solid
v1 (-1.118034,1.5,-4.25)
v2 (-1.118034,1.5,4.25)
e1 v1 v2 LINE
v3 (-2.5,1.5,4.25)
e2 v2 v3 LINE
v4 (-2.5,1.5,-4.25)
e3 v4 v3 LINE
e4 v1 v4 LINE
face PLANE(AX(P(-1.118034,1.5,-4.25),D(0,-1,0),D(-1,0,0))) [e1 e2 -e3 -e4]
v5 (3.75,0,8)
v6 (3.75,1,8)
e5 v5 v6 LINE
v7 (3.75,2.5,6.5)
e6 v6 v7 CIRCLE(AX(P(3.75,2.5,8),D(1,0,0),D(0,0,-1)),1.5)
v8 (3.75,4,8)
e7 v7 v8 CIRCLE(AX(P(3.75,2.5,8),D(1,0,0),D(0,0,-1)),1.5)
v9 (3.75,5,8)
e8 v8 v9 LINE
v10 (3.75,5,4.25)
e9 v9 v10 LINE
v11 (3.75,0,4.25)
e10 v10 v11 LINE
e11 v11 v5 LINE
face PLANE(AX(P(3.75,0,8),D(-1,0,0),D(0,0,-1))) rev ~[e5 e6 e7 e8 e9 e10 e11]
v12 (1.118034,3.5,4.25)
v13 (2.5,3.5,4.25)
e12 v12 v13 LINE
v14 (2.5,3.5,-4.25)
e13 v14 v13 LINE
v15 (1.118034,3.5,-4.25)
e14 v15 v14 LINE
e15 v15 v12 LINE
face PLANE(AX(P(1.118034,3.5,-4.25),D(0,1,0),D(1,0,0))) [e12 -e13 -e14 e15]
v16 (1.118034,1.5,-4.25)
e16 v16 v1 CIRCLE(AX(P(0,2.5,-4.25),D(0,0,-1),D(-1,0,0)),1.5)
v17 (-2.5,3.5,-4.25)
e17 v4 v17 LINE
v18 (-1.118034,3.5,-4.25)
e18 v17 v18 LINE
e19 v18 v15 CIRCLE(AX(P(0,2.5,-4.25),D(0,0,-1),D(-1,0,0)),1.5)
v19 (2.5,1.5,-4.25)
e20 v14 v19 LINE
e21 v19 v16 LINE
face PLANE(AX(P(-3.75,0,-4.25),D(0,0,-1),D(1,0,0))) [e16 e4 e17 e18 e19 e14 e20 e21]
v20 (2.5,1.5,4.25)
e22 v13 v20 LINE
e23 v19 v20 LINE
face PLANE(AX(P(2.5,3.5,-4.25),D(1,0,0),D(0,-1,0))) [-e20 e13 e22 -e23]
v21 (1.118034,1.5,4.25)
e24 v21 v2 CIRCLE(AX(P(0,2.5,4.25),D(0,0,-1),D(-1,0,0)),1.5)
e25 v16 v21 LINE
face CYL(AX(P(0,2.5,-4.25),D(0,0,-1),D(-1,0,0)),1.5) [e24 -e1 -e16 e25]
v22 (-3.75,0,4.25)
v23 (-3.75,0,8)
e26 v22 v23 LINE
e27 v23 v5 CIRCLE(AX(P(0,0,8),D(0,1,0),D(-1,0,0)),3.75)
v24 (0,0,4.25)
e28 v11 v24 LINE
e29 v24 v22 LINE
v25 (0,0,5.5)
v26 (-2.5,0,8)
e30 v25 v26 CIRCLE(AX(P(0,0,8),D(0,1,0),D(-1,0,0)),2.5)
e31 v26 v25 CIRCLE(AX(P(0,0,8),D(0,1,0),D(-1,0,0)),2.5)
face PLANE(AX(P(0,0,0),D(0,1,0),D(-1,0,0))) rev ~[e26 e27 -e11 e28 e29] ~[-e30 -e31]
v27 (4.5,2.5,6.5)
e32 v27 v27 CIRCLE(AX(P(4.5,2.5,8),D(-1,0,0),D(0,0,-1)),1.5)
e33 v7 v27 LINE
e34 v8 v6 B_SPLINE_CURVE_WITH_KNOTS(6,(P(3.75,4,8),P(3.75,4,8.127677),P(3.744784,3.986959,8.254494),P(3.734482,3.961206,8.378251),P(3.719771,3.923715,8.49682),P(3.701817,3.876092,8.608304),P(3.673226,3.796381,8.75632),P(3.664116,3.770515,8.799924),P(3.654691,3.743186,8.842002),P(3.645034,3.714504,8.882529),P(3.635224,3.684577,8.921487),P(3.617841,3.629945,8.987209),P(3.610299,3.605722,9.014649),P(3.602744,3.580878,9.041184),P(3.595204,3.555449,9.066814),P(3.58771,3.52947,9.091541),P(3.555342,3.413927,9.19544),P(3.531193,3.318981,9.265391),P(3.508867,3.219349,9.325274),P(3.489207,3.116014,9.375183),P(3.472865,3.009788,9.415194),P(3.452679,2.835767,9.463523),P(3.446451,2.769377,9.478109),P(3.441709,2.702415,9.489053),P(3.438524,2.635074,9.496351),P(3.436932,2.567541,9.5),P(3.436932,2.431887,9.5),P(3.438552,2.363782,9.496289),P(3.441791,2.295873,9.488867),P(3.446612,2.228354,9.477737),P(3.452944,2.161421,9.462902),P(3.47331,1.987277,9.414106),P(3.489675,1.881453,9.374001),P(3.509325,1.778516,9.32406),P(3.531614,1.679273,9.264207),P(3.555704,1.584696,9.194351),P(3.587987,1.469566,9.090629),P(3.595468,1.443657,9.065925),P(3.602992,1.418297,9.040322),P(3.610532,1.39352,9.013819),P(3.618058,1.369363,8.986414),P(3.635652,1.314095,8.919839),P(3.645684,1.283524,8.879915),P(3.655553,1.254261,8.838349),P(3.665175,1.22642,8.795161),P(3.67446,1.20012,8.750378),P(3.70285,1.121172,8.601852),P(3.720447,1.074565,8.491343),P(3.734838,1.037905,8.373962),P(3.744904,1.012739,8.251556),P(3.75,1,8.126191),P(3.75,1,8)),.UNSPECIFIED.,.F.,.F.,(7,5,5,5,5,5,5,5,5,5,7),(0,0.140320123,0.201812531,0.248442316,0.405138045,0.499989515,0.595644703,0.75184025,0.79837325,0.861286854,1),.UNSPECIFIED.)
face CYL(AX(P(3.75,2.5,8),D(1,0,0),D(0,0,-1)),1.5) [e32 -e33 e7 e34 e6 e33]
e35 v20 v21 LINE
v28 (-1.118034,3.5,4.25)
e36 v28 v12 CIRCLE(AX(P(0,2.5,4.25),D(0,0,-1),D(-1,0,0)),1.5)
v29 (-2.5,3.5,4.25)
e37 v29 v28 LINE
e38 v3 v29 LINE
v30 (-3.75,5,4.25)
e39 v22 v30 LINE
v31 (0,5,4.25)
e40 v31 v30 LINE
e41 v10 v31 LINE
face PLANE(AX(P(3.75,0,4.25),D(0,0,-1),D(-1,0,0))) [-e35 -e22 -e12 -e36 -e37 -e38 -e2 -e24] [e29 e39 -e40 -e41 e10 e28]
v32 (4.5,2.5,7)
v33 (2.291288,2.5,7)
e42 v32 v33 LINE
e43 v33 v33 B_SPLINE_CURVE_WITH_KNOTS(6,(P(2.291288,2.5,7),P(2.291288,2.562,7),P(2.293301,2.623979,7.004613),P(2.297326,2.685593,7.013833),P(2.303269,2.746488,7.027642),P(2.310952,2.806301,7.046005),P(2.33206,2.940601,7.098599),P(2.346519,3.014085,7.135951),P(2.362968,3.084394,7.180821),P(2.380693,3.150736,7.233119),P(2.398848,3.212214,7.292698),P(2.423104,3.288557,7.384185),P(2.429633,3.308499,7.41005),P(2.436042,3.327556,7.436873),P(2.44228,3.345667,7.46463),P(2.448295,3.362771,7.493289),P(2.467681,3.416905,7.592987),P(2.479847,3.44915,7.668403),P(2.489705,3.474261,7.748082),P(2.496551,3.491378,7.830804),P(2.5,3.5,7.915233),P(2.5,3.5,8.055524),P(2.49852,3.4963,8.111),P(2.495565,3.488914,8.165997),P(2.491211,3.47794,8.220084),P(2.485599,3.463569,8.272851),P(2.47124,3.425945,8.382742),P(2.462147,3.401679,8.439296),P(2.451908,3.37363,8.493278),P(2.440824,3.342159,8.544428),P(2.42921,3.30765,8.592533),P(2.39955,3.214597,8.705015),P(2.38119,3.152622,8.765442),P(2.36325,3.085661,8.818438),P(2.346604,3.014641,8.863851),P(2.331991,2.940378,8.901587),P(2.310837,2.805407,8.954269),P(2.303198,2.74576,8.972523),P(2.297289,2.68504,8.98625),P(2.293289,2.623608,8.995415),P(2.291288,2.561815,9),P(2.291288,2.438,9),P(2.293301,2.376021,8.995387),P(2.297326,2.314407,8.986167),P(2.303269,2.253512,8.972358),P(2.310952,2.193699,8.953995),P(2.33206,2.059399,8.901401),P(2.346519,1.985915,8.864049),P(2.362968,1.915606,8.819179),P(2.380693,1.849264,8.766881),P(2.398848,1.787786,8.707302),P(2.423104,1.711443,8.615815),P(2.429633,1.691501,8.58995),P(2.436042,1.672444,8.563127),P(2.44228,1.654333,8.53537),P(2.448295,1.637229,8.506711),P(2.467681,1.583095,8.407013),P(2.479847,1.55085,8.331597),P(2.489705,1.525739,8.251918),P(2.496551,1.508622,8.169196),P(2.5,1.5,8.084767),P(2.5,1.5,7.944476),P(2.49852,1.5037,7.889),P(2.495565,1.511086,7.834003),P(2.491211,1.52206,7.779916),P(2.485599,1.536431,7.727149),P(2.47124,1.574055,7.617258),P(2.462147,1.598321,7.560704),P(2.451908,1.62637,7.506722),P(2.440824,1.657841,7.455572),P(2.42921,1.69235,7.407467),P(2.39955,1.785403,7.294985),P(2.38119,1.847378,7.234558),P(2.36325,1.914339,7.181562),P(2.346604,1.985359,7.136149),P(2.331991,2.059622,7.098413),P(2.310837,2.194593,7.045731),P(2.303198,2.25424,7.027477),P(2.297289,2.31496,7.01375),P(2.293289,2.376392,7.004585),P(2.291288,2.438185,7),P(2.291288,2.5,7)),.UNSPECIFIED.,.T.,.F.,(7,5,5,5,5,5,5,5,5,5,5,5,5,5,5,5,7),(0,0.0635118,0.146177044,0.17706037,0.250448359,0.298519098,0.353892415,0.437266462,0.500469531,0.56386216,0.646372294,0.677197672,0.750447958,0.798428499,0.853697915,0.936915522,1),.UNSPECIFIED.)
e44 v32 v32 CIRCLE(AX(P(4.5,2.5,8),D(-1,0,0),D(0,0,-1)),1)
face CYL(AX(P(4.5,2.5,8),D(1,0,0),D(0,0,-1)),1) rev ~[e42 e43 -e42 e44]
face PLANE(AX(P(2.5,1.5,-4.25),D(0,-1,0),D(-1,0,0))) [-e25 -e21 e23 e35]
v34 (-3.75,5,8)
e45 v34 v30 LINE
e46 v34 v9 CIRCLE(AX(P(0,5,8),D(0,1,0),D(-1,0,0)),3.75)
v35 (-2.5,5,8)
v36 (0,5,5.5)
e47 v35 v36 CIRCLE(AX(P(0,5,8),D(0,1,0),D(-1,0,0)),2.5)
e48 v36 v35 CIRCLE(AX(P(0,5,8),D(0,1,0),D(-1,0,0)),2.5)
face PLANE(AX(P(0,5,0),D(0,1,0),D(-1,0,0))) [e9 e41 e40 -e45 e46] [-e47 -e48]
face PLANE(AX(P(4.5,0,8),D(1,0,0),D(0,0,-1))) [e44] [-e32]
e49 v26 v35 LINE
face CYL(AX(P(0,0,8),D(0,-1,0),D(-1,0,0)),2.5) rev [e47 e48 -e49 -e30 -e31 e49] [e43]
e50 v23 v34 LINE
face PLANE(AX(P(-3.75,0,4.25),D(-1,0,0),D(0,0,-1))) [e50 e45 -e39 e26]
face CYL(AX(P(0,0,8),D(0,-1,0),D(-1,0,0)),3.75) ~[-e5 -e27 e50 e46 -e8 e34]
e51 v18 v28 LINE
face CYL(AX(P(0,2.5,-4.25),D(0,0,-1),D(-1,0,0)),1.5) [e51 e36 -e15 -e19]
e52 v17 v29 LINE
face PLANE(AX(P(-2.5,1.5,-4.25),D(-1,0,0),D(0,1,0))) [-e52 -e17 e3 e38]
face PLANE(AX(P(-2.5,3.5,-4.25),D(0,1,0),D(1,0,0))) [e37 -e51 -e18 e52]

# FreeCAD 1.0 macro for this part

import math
import FreeCAD as App
import Part
import Sketcher
from FreeCAD import Vector


def add_polygon(sketch, points):
    """Adds a closed chain of lines whose ends are joined by coincident constraints."""
    first, n = sketch.GeometryCount, len(points)
    for a, b in zip(points, points[1:] + points[:1]):
        sketch.addGeometry(Part.LineSegment(App.Vector(*a, 0), App.Vector(*b, 0)), False)
    for i in range(n):
        sketch.addConstraint(Sketcher.Constraint("Coincident", first + i, 2, first + (i + 1) % n, 1))

doc = App.newDocument("Part")
body = doc.addObject("PartDesign::Body", "Body")

# Sketch on XZ plane
sketch1 = body.newObject("Sketcher::SketchObject", "Sketch")
sketch1.AttachmentSupport = (doc.getObject("XZ_Plane"), [""])
sketch1.MapMode = "FlatFace"
sketch1.addGeometry(Part.LineSegment(Vector(-3.8, -4.2, 0), Vector(-3.8, 8, 0)), False)
sketch1.addGeometry(Part.ArcOfCircle(Part.Circle(Vector(0, 8, 0), Vector(0, 0, 1), 3.8), math.radians(0), math.radians(180)), False)
sketch1.addGeometry(Part.LineSegment(Vector(3.8, 8, 0), Vector(3.8, -4.2, 0)), False)
sketch1.addGeometry(Part.LineSegment(Vector(3.8, -4.2, 0), Vector(-3.8, -4.2, 0)), False)
sketch1.addGeometry(Part.Circle(Vector(0, 8, 0), Vector(0, 0, 1), 2.5), False)
sketch1.addConstraint(Sketcher.Constraint("Tangent", 0, 2, 1, 2))
sketch1.addConstraint(Sketcher.Constraint("Tangent", 1, 1, 2, 1))
sketch1.addConstraint(Sketcher.Constraint("Coincident", 2, 2, 3, 1))
sketch1.addConstraint(Sketcher.Constraint("Coincident", 3, 2, 0, 1))
sketch1.addConstraint(Sketcher.Constraint("Vertical", 0))
sketch1.addConstraint(Sketcher.Constraint("Vertical", 2))
sketch1.addConstraint(Sketcher.Constraint("Horizontal", 3))
sketch1.addConstraint(Sketcher.Constraint("Coincident", 4, 3, 1, 3))
sketch1.addConstraint(Sketcher.Constraint("PointOnObject", 1, 3, -2))
sketch1.addConstraint(Sketcher.Constraint("Diameter", 4, 5.0))
sketch1.addConstraint(Sketcher.Constraint("Radius", 1, 3.75))
sketch1.addConstraint(Sketcher.Constraint("DistanceY", -1, 1, 1, 3, 8.0))
sketch1.addConstraint(Sketcher.Constraint("DistanceY", 0, 1, 0, 2, 12.25))
pad1 = body.newObject("PartDesign::Pad", "Pad")
pad1.Profile = sketch1
pad1.Length = 5
pad1.Reversed = True

# Sketch on XY plane
sketch2 = body.newObject("Sketcher::SketchObject", "Sketch001")
sketch2.AttachmentSupport = (doc.getObject("XY_Plane"), [""])
sketch2.MapMode = "FlatFace"
sketch2.AttachmentOffset = App.Placement(Vector(0, 0, -4.25), App.Rotation())
add_polygon(sketch2, [(-3.8, 5), (3.8, 5), (3.8, 0), (-3.8, 0)])  # lines 0-3
sketch2.addGeometry(Part.ArcOfCircle(Part.Circle(Vector(0, 2.5, 0), Vector(0, 0, 1), 1.5), math.radians(42), math.radians(138)), False)  # 4
sketch2.addGeometry(Part.LineSegment(Vector(-1.1, 3.5, 0), Vector(-2.5, 3.5, 0)), False)  # 5
sketch2.addGeometry(Part.LineSegment(Vector(-2.5, 3.5, 0), Vector(-2.5, 1.5, 0)), False)  # 6
sketch2.addGeometry(Part.LineSegment(Vector(-2.5, 1.5, 0), Vector(-1.1, 1.5, 0)), False)  # 7
sketch2.addGeometry(Part.ArcOfCircle(Part.Circle(Vector(0, 2.5, 0), Vector(0, 0, 1), 1.5), math.radians(-138), math.radians(-42)), False)  # 8
sketch2.addGeometry(Part.LineSegment(Vector(1.1, 1.5, 0), Vector(2.5, 1.5, 0)), False)  # 9
sketch2.addGeometry(Part.LineSegment(Vector(2.5, 1.5, 0), Vector(2.5, 3.5, 0)), False)  # 10
sketch2.addGeometry(Part.LineSegment(Vector(2.5, 3.5, 0), Vector(1.1, 3.5, 0)), False)  # 11
sketch2.addConstraint(Sketcher.Constraint("Coincident", 4, 2, 5, 1))
sketch2.addConstraint(Sketcher.Constraint("Coincident", 5, 2, 6, 1))
sketch2.addConstraint(Sketcher.Constraint("Coincident", 6, 2, 7, 1))
sketch2.addConstraint(Sketcher.Constraint("Coincident", 7, 2, 8, 1))
sketch2.addConstraint(Sketcher.Constraint("Coincident", 8, 2, 9, 1))
sketch2.addConstraint(Sketcher.Constraint("Coincident", 9, 2, 10, 1))
sketch2.addConstraint(Sketcher.Constraint("Coincident", 10, 2, 11, 1))
sketch2.addConstraint(Sketcher.Constraint("Coincident", 11, 2, 4, 1))
sketch2.addConstraint(Sketcher.Constraint("Horizontal", 0))
sketch2.addConstraint(Sketcher.Constraint("Vertical", 1))
sketch2.addConstraint(Sketcher.Constraint("Horizontal", 2))
sketch2.addConstraint(Sketcher.Constraint("Vertical", 3))
sketch2.addConstraint(Sketcher.Constraint("Horizontal", 5))
sketch2.addConstraint(Sketcher.Constraint("Vertical", 6))
sketch2.addConstraint(Sketcher.Constraint("Horizontal", 7))
sketch2.addConstraint(Sketcher.Constraint("Horizontal", 9))
sketch2.addConstraint(Sketcher.Constraint("Vertical", 10))
sketch2.addConstraint(Sketcher.Constraint("Horizontal", 11))
sketch2.addConstraint(Sketcher.Constraint("Coincident", 8, 3, 4, 3))
sketch2.addConstraint(Sketcher.Constraint("Equal", 4, 8))
sketch2.addConstraint(Sketcher.Constraint("Symmetric", 1, 2, 2, 2, -1, 1))
sketch2.addConstraint(Sketcher.Constraint("Symmetric", 7, 2, 8, 2, -2))
sketch2.addConstraint(Sketcher.Constraint("Symmetric", 5, 2, 10, 2, -2))
sketch2.addConstraint(Sketcher.Constraint("Vertical", 4, 2, 7, 2))
sketch2.addConstraint(Sketcher.Constraint("Radius", 4, 1.5))
sketch2.addConstraint(Sketcher.Constraint("DistanceY", 1, 2, 1, 1, 5.0))
sketch2.addConstraint(Sketcher.Constraint("DistanceY", 6, 2, 6, 1, 2.0))
sketch2.addConstraint(Sketcher.Constraint("DistanceX", 0, 1, 0, 2, 7.5))
sketch2.addConstraint(Sketcher.Constraint("DistanceY", -1, 1, 4, 3, 2.5))
sketch2.addConstraint(Sketcher.Constraint("DistanceX", 5, 2, -1, 1, 2.5))
pocket1 = body.newObject("PartDesign::Pocket", "Pocket")
pocket1.Profile = sketch2
pocket1.Length = 8.5
pocket1.Reversed = True

# Sketch on YZ plane
sketch3 = body.newObject("Sketcher::SketchObject", "Sketch002")
sketch3.AttachmentSupport = (doc.getObject("YZ_Plane"), [""])
sketch3.MapMode = "FlatFace"
sketch3.AttachmentOffset = App.Placement(Vector(0, 0, 3.75), App.Rotation())
sketch3.addGeometry(Part.Circle(Vector(2.5, 8, 0), Vector(0, 0, 1), 1.5), False)
sketch3.addConstraint(Sketcher.Constraint("Diameter", 0, 3.0))
sketch3.addConstraint(Sketcher.Constraint("DistanceY", -1, 1, 0, 3, 8.0))
sketch3.addConstraint(Sketcher.Constraint("DistanceX", -1, 1, 0, 3, 2.5))
pad2 = body.newObject("PartDesign::Pad", "Pad001")
pad2.Profile = sketch3
pad2.Length = 1.5
pad2.Midplane = True

# Sketch on YZ plane
sketch4 = body.newObject("Sketcher::SketchObject", "Sketch003")
sketch4.AttachmentSupport = (doc.getObject("YZ_Plane"), [""])
sketch4.MapMode = "FlatFace"
sketch4.AttachmentOffset = App.Placement(Vector(0, 0, 4.5), App.Rotation())
sketch4.addGeometry(Part.Circle(Vector(2.5, 8, 0), Vector(0, 0, 1), 1), False)
sketch4.addConstraint(Sketcher.Constraint("Diameter", 0, 2.0))
sketch4.addConstraint(Sketcher.Constraint("DistanceY", -1, 1, 0, 3, 8.0))
sketch4.addConstraint(Sketcher.Constraint("DistanceX", -1, 1, 0, 3, 2.5))
pocket2 = body.newObject("PartDesign::Pocket", "Pocket001")
pocket2.Profile = sketch4
pocket2.Length = 3.2625

doc.recompute()
